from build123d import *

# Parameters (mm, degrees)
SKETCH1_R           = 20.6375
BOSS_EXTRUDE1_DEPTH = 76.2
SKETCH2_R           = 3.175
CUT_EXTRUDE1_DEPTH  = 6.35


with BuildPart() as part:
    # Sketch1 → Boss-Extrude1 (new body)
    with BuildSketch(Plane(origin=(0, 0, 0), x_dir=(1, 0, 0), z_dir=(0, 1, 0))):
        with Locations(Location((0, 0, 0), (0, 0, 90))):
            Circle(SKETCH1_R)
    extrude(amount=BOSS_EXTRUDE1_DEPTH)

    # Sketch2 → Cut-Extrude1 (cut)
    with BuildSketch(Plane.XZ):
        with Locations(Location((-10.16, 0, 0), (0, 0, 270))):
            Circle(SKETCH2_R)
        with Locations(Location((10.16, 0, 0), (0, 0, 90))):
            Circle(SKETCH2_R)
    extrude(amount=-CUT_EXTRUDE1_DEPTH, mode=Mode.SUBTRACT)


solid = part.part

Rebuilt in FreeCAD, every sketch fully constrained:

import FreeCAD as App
import Part
import Sketcher
from FreeCAD import Vector
Q = App.Units.Quantity

doc = App.newDocument("Part")
body = doc.addObject("PartDesign::Body", "Body")

# Sketch on XZ plane
sketch1 = doc.addObject("Sketcher::SketchObject", "Sketch")
body.addObject(sketch1)
sketch1.AttachmentSupport = (doc.XZ_Plane, [""])
sketch1.MapMode = "FlatFace"
sketch1.addGeometry(Part.Circle(Vector(0, 0, 0), Vector(0, 0, 1), 21), False)
sketch1.addConstraint(Sketcher.Constraint("Coincident", 0, 3, -1, 1))
sketch1.addConstraint(Sketcher.Constraint("Diameter", 0, Q("1.625 in")))
pad1 = doc.addObject("PartDesign::Pad", "Pad")
body.addObject(pad1)
pad1.Profile = sketch1
pad1.Length = Q("3 in")
pad1.Reversed = True

# Sketch on XZ plane
sketch2 = doc.addObject("Sketcher::SketchObject", "Sketch001")
body.addObject(sketch2)
sketch2.AttachmentSupport = (doc.XZ_Plane, [""])
sketch2.MapMode = "FlatFace"
sketch2.addGeometry(Part.Circle(Vector(-10.2, 0, 0), Vector(0, 0, 1), 3.2), False)
sketch2.addGeometry(Part.Circle(Vector(10.2, 0, 0), Vector(0, 0, 1), 3.2), False)
sketch2.addConstraint(Sketcher.Constraint("Equal", 0, 1))
sketch2.addConstraint(Sketcher.Constraint("Symmetric", 0, 3, 1, 3, -1, 1))
sketch2.addConstraint(Sketcher.Constraint("PointOnObject", 0, 3, -1))
sketch2.addConstraint(Sketcher.Constraint("Diameter", 0, Q("0.25 in")))
sketch2.addConstraint(Sketcher.Constraint("DistanceX", 0, 3, -1, 1, Q("0.4 in")))
pocket1 = doc.addObject("PartDesign::Pocket", "Pocket")
body.addObject(pocket1)
pocket1.Profile = sketch2
pocket1.Length = Q("0.25 in")

doc.recompute()
